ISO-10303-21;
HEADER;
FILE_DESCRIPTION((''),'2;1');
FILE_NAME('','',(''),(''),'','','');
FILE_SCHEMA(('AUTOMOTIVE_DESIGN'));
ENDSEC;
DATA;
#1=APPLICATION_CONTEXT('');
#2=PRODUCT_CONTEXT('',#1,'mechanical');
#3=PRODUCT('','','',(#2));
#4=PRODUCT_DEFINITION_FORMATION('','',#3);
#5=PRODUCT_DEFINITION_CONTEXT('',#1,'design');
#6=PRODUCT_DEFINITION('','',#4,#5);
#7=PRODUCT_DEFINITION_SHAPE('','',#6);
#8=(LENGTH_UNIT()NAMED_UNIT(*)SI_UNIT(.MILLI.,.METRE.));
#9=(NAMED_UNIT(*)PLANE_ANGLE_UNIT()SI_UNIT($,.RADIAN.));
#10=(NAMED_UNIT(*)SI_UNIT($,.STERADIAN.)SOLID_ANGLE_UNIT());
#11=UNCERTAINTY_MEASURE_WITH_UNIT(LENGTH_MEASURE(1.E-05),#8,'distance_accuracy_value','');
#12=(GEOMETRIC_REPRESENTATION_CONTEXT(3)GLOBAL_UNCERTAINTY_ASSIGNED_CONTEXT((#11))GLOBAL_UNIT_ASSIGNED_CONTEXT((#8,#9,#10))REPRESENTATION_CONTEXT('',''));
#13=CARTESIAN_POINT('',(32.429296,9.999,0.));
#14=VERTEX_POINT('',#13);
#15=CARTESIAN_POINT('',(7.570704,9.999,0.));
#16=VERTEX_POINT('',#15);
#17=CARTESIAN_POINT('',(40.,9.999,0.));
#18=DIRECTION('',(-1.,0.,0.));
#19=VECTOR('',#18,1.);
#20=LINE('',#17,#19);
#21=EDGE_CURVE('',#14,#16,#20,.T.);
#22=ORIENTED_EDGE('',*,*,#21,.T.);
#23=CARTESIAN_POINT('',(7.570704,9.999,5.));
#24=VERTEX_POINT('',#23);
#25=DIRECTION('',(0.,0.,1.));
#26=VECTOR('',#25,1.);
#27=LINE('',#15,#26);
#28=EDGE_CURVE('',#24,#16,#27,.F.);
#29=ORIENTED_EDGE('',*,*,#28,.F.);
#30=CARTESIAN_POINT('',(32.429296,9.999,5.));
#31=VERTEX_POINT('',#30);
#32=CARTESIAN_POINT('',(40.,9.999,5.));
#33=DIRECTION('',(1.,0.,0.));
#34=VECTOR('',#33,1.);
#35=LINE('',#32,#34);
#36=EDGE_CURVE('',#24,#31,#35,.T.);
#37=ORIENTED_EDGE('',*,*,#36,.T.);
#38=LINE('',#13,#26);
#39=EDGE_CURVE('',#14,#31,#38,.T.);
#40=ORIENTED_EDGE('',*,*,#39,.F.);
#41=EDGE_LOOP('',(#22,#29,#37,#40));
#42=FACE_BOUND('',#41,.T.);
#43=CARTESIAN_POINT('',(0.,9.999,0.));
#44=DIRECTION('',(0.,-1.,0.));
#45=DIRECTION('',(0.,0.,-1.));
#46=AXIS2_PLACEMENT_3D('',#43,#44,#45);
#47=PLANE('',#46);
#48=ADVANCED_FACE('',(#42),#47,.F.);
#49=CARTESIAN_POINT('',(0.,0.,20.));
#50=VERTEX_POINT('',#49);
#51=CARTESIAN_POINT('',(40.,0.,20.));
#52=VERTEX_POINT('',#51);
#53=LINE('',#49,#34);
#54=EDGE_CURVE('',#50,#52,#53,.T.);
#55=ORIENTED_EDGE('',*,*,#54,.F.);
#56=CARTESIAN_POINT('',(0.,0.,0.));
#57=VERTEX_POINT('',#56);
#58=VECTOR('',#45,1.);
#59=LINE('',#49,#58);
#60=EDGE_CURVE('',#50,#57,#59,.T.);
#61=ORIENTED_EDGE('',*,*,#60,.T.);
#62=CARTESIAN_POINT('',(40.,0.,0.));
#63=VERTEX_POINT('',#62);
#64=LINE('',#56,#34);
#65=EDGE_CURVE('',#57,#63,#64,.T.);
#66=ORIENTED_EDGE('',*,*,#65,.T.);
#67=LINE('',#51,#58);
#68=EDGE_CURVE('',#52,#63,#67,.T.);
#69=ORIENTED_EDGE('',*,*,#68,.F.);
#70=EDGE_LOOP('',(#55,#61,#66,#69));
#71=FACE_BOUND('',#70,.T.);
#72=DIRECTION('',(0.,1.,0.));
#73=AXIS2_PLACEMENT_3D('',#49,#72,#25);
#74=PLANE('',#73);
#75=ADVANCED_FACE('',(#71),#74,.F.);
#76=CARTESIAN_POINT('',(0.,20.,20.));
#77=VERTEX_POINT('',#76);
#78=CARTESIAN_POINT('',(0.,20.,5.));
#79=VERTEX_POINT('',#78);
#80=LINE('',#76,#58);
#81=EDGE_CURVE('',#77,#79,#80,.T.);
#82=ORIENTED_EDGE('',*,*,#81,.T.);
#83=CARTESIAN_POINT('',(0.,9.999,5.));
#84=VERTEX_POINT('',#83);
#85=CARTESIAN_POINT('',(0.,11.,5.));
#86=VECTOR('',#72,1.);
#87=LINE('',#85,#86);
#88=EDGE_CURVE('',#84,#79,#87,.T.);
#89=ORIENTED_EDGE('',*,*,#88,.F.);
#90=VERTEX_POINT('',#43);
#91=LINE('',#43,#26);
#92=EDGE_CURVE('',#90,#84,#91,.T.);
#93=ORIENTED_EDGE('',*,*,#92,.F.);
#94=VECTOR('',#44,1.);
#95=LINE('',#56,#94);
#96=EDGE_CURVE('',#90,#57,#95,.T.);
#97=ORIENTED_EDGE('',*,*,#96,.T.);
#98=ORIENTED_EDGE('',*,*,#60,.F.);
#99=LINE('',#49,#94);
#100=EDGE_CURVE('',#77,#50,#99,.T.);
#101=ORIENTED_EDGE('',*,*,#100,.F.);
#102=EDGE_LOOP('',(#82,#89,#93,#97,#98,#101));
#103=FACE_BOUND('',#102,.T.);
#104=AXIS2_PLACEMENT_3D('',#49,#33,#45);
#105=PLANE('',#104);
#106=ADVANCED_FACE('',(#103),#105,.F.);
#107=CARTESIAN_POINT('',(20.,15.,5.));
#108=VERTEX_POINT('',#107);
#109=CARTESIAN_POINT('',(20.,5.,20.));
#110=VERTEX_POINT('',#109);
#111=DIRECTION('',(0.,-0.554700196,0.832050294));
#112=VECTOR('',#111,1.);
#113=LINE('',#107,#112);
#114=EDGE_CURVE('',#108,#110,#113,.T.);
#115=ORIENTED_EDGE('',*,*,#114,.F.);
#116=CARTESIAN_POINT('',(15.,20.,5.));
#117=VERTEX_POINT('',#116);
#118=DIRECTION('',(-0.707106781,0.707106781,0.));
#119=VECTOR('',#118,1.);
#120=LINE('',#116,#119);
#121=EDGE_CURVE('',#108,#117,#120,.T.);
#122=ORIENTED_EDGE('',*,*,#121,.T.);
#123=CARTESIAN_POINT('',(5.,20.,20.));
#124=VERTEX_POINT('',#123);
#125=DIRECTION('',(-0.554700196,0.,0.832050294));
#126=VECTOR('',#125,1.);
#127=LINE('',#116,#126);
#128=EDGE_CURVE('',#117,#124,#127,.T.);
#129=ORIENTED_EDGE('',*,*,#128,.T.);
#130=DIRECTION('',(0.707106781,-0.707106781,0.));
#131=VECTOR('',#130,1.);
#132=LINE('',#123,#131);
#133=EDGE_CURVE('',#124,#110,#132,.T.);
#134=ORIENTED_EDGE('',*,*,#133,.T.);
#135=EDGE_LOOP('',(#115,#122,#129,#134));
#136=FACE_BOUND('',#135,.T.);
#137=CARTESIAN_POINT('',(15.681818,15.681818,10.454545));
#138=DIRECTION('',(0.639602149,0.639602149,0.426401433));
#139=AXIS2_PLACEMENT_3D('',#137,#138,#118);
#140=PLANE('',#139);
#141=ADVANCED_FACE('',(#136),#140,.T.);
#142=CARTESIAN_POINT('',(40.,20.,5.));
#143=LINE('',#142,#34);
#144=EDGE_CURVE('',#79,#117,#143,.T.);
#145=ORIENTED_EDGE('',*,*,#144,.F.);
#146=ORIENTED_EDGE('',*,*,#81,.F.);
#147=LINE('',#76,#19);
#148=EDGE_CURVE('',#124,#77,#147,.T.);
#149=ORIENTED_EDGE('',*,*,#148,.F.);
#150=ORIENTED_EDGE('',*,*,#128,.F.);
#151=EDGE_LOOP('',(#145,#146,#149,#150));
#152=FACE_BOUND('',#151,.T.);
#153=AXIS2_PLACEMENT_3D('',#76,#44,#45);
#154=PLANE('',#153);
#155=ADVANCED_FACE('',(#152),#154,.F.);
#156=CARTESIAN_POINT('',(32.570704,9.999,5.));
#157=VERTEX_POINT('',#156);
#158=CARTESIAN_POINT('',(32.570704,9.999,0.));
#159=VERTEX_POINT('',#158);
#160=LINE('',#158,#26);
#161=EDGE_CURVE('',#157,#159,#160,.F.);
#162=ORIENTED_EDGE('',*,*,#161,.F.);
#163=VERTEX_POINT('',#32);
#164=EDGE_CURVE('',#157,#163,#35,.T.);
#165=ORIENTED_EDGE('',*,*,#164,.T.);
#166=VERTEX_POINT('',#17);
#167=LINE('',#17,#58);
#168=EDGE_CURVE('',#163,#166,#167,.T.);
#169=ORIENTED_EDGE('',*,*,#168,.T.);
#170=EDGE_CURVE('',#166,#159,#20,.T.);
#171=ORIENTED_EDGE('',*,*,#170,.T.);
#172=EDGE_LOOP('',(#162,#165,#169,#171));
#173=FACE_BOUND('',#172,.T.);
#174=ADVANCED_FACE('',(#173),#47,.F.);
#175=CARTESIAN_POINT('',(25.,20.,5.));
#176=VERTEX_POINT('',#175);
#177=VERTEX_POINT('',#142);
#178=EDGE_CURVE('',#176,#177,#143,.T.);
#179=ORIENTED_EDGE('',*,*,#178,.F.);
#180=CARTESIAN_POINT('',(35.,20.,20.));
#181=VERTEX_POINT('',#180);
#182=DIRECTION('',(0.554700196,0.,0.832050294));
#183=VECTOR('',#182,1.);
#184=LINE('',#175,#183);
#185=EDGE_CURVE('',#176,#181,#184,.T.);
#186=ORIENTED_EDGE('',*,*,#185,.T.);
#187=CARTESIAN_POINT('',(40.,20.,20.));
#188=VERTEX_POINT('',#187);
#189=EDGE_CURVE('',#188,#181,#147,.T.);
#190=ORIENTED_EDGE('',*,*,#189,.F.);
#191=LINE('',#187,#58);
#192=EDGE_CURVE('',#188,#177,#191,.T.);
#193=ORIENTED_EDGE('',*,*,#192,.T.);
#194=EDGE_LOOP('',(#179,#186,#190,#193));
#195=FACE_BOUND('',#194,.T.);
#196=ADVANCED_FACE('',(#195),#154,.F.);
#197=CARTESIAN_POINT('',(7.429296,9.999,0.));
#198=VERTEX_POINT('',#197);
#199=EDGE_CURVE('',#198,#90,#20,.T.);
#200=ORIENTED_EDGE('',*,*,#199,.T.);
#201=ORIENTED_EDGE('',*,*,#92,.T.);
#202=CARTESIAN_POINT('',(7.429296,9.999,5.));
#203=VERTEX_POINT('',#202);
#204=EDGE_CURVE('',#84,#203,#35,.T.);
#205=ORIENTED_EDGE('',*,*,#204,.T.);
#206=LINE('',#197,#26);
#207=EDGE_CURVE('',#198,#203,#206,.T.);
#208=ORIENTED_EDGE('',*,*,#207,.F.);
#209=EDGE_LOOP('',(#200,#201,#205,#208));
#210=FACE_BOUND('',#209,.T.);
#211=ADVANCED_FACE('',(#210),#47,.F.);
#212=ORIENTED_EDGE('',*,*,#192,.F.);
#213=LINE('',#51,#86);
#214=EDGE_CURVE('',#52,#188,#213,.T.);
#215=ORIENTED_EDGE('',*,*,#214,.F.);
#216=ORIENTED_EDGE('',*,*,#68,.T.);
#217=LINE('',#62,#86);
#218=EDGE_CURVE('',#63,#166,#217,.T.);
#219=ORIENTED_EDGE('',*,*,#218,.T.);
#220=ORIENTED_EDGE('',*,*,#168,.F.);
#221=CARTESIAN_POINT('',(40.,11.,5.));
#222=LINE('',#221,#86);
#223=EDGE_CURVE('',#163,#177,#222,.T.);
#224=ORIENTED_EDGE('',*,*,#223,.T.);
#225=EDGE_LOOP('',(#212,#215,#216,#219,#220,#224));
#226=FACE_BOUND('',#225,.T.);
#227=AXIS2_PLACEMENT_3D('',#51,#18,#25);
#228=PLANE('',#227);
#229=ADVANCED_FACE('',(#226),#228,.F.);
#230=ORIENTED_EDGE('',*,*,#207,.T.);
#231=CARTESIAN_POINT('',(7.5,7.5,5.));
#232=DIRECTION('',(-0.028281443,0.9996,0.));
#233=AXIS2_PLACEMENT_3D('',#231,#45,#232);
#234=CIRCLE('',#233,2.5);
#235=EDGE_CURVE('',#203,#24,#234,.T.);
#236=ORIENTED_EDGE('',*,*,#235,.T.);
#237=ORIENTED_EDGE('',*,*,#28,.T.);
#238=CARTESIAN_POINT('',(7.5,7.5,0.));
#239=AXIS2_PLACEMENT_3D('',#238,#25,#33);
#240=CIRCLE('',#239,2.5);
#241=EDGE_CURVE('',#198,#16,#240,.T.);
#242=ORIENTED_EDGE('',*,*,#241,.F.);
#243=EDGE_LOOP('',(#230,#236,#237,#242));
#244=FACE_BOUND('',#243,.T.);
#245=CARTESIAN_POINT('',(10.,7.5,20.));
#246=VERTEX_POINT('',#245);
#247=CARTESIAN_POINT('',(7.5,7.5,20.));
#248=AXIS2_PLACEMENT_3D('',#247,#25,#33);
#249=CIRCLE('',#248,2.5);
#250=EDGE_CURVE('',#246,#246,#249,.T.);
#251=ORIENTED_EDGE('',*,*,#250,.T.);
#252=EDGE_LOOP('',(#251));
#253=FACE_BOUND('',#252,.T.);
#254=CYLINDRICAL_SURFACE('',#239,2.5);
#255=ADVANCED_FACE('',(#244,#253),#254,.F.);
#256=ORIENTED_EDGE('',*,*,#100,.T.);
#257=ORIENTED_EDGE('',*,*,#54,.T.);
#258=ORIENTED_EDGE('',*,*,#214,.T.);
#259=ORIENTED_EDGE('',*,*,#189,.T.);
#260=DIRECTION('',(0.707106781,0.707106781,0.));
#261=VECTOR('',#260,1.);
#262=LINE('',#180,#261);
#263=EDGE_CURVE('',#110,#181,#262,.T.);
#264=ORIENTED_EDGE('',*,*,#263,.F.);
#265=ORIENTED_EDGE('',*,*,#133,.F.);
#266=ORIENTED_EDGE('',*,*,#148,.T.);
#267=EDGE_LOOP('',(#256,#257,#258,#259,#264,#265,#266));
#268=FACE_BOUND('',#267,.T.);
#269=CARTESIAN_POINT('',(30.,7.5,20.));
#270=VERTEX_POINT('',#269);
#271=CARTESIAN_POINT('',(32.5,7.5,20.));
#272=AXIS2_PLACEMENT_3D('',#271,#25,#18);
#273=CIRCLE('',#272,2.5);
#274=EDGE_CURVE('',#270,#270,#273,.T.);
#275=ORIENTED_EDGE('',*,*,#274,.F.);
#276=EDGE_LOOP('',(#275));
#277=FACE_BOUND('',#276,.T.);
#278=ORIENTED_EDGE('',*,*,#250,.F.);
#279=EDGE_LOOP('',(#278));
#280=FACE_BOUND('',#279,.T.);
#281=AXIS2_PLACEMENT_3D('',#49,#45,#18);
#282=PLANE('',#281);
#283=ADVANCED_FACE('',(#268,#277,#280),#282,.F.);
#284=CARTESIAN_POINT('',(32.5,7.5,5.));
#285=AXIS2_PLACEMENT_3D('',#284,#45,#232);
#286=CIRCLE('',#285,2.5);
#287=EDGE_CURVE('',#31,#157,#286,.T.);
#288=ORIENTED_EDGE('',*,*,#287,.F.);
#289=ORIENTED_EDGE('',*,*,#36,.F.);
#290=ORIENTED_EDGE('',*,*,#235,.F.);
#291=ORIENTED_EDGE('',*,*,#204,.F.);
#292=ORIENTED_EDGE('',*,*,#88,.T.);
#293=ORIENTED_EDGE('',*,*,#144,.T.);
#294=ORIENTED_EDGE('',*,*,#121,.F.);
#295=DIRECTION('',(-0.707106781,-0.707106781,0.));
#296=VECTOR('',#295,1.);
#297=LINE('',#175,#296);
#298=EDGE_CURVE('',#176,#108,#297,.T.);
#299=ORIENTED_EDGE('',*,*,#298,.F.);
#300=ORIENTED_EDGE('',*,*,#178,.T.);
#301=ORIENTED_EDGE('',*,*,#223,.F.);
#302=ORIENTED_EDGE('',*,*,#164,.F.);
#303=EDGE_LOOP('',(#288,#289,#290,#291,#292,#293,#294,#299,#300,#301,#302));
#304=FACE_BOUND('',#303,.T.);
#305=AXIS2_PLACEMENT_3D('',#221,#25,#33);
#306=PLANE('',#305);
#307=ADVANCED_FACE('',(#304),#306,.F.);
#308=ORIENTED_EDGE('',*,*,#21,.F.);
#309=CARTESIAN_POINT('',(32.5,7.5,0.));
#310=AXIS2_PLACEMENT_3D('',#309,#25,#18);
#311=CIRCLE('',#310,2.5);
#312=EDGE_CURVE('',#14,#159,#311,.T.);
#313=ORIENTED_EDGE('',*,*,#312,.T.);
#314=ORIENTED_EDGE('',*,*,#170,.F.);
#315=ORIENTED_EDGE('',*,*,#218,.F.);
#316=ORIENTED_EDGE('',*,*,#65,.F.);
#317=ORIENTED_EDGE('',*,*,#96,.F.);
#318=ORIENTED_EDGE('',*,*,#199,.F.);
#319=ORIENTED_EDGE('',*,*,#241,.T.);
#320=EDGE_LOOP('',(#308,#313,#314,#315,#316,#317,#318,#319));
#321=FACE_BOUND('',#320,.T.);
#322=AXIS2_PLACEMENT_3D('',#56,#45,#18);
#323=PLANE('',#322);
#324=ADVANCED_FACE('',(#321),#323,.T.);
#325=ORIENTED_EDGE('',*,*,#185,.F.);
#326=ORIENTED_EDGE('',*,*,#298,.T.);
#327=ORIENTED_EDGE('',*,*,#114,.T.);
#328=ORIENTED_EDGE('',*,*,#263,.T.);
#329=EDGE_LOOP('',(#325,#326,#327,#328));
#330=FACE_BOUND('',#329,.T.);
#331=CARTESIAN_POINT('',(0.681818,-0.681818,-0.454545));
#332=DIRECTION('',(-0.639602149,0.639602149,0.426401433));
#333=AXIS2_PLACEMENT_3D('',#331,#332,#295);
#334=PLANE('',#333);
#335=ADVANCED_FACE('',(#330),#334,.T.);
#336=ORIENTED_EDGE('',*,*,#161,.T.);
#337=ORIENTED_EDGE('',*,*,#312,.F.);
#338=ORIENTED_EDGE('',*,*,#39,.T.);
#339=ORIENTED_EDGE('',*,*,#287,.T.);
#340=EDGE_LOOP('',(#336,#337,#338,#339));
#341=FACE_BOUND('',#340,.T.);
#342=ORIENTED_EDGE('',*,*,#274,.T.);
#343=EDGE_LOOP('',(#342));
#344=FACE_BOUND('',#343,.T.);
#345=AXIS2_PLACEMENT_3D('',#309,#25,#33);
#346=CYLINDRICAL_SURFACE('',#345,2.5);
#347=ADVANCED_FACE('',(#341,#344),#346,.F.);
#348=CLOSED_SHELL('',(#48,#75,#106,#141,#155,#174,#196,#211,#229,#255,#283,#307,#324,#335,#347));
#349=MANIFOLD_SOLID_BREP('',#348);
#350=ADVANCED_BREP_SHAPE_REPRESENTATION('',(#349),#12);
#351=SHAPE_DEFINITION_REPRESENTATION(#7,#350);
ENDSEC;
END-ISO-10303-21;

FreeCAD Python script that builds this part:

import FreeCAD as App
import Part
import Sketcher

V = App.Vector


def add_polygon(sketch, points):
    """Adds a closed chain of lines whose ends are joined by coincident constraints."""
    first, n = sketch.GeometryCount, len(points)
    for a, b in zip(points, points[1:] + points[:1]):
        sketch.addGeometry(Part.LineSegment(App.Vector(*a, 0), App.Vector(*b, 0)), False)
    for i in range(n):
        sketch.addConstraint(Sketcher.Constraint("Coincident", first + i, 2, first + (i + 1) % n, 1))

doc = App.newDocument("Part")
body = doc.addObject("PartDesign::Body", "Body")

# Sketch on XY plane
sketch1 = doc.addObject("Sketcher::SketchObject", "Sketch")
body.addObject(sketch1)
sketch1.AttachmentSupport = (doc.XY_Plane, [""])
sketch1.MapMode = "FlatFace"
add_polygon(sketch1, [(0, 20), (0, 0), (40, 0), (40, 20)])  # lines 0-3
sketch1.addConstraint(Sketcher.Constraint("Vertical", 0))
sketch1.addConstraint(Sketcher.Constraint("Horizontal", 1))
sketch1.addConstraint(Sketcher.Constraint("Vertical", 2))
sketch1.addConstraint(Sketcher.Constraint("Horizontal", 3))
sketch1.addConstraint(Sketcher.Constraint("Coincident", 0, 2, -1, 1))
sketch1.addConstraint(Sketcher.Constraint("DistanceX", 1, 1, 1, 2, 40.0))
sketch1.addConstraint(Sketcher.Constraint("DistanceY", 0, 2, 0, 1, 20.0))
pad1 = doc.addObject("PartDesign::Pad", "Pad")
body.addObject(pad1)
pad1.Profile = sketch1
pad1.Length = 20

# Sketch on XY plane
sketch2 = doc.addObject("Sketcher::SketchObject", "Sketch001")
body.addObject(sketch2)
sketch2.AttachmentSupport = (doc.XY_Plane, [""])
sketch2.MapMode = "FlatFace"
sketch2.AttachmentOffset = App.Placement(V(0, 0, 20), App.Rotation())
sketch2.addGeometry(Part.Circle(V(7.5, 7.5, 0), V(0, 0, 1), 2.5), False)
sketch2.addGeometry(Part.Circle(V(32.5, 7.5, 0), V(0, 0, 1), 2.5), False)
sketch2.addConstraint(Sketcher.Constraint("Equal", 0, 1))
sketch2.addConstraint(Sketcher.Constraint("Horizontal", 0, 3, 1, 3))
sketch2.addConstraint(Sketcher.Constraint("Diameter", 0, 5.0))
sketch2.addConstraint(Sketcher.Constraint("DistanceX", 0, 3, 1, 3, 25.0))
sketch2.addConstraint(Sketcher.Constraint("DistanceX", -1, 1, 0, 3, 7.5))
sketch2.addConstraint(Sketcher.Constraint("DistanceY", -1, 1, 0, 3, 7.5))
pocket1 = doc.addObject("PartDesign::Pocket", "Pocket")
body.addObject(pocket1)
pocket1.Profile = sketch2
pocket1.Length = 20

# Sketch on XZ plane
sketch3 = doc.addObject("Sketcher::SketchObject", "Sketch002")
body.addObject(sketch3)
sketch3.AttachmentSupport = (doc.XZ_Plane, [""])
sketch3.MapMode = "FlatFace"
sketch3.AttachmentOffset = App.Placement(V(0, 0, -20), App.Rotation())
add_polygon(sketch3, [(0, 0), (0, 5), (40, 5), (40, 0)])  # lines 0-3
sketch3.addConstraint(Sketcher.Constraint("Vertical", 0))
sketch3.addConstraint(Sketcher.Constraint("Horizontal", 1))
sketch3.addConstraint(Sketcher.Constraint("Vertical", 2))
sketch3.addConstraint(Sketcher.Constraint("Horizontal", 3))
sketch3.addConstraint(Sketcher.Constraint("Coincident", 3, 2, -1, 1))
sketch3.addConstraint(Sketcher.Constraint("DistanceX", 1, 1, 1, 2, 40.0))
sketch3.addConstraint(Sketcher.Constraint("DistanceY", 0, 1, 0, 2, 5.0))
pocket2 = doc.addObject("PartDesign::Pocket", "Pocket001")
body.addObject(pocket2)
pocket2.Profile = sketch3
pocket2.Length = 9
pocket2.Reversed = True

# Sketch on XY plane
sketch4 = doc.addObject("Sketcher::SketchObject", "Sketch003")
body.addObject(sketch4)
sketch4.AttachmentSupport = (doc.XY_Plane, [""])
sketch4.MapMode = "FlatFace"
sketch4.AttachmentOffset = App.Placement(V(0, 0, 5), App.Rotation())
add_polygon(sketch4, [(25, 20), (20, 15), (15, 20)])  # lines 0-2
sketch4.addConstraint(Sketcher.Constraint("Horizontal", 2))
sketch4.addConstraint(Sketcher.Constraint("Perpendicular", 0, 1))
sketch4.addConstraint(Sketcher.Constraint("Equal", 0, 1))
sketch4.addConstraint(Sketcher.Constraint("DistanceX", 2, 1, 2, 2, 10.0))
sketch4.addConstraint(Sketcher.Constraint("DistanceX", -1, 1, 0, 2, 20.0))
sketch4.addConstraint(Sketcher.Constraint("DistanceY", -1, 1, 0, 2, 15.0))

# Sketch on XY plane
sketch5 = doc.addObject("Sketcher::SketchObject", "Sketch004")
body.addObject(sketch5)
sketch5.AttachmentSupport = (doc.XY_Plane, [""])
sketch5.MapMode = "FlatFace"
sketch5.AttachmentOffset = App.Placement(V(0, 0, 20), App.Rotation())
add_polygon(sketch5, [(5, 20), (20, 5), (35, 20)])  # lines 0-2
sketch5.addConstraint(Sketcher.Constraint("Horizontal", 2))
sketch5.addConstraint(Sketcher.Constraint("Perpendicular", 0, 1))
sketch5.addConstraint(Sketcher.Constraint("Equal", 0, 1))
sketch5.addConstraint(Sketcher.Constraint("DistanceX", 2, 2, 2, 1, 30.0))
sketch5.addConstraint(Sketcher.Constraint("DistanceX", -1, 1, 0, 2, 20.0))
sketch5.addConstraint(Sketcher.Constraint("DistanceY", -1, 1, 0, 2, 5.0))

subtractiveloft = doc.addObject("PartDesign::SubtractiveLoft", "SubtractiveLoft")
body.addObject(subtractiveloft)
subtractiveloft.Profile = sketch4
subtractiveloft.Sections = [sketch5]

# Sketch on XZ plane
sketch6 = doc.addObject("Sketcher::SketchObject", "Sketch005")
body.addObject(sketch6)
sketch6.AttachmentSupport = (doc.XZ_Plane, [""])
sketch6.MapMode = "FlatFace"
sketch6.AttachmentOffset = App.Placement(V(0, 0, -11), App.Rotation())
add_polygon(sketch6, [(0, 0), (0, 5), (40, 5), (40, 0)])  # lines 0-3
sketch6.addConstraint(Sketcher.Constraint("Vertical", 0))
sketch6.addConstraint(Sketcher.Constraint("Horizontal", 1))
sketch6.addConstraint(Sketcher.Constraint("Vertical", 2))
sketch6.addConstraint(Sketcher.Constraint("Horizontal", 3))
sketch6.addConstraint(Sketcher.Constraint("Coincident", 3, 2, -1, 1))
sketch6.addConstraint(Sketcher.Constraint("DistanceX", 1, 1, 1, 2, 40.0))
sketch6.addConstraint(Sketcher.Constraint("DistanceY", 0, 1, 0, 2, 5.0))
pocket3 = doc.addObject("PartDesign::Pocket", "Pocket002")
body.addObject(pocket3)
pocket3.Profile = sketch6
pocket3.Length = 1.001
pocket3.Reversed = True

doc.recompute()
